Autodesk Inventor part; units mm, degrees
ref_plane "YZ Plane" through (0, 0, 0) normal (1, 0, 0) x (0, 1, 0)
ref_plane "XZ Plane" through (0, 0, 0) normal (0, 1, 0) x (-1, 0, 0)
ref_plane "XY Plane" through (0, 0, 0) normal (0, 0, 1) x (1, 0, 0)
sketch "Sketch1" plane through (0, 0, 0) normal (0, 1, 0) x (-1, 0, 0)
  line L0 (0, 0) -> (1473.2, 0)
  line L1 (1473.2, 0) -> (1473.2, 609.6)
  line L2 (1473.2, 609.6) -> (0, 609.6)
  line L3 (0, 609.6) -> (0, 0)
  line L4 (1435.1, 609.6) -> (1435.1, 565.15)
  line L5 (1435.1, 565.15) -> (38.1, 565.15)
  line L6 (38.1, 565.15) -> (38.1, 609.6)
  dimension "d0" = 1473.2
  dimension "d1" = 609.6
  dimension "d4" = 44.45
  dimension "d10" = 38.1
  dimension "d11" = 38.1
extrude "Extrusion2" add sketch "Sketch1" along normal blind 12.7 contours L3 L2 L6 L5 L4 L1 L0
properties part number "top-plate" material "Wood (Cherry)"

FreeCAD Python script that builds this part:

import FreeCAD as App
import Part
import Sketcher

V = App.Vector
Q = App.Units.Quantity


def add_polygon(sketch, points):
    """Adds a closed chain of lines whose ends are joined by coincident constraints."""
    first, n = sketch.GeometryCount, len(points)
    for a, b in zip(points, points[1:] + points[:1]):
        sketch.addGeometry(Part.LineSegment(App.Vector(*a, 0), App.Vector(*b, 0)), False)
    for i in range(n):
        sketch.addConstraint(Sketcher.Constraint("Coincident", first + i, 2, first + (i + 1) % n, 1))

doc = App.newDocument("Part")
params = doc.addObject("Spreadsheet::Sheet", "Params")
for row, (alias, value) in enumerate([
    ("sketch1_width", "58 in"),
    ("sketch1_height", "24 in"),
    ("sketch1_width2", "1.5 in"),
    ("sketch1_height2", "1.75 in"),
    ("pad1_length", "0.5 in"),
], start=1):
    params.set(f"A{row}", alias)
    params.set(f"B{row}", "=" + value)
    params.setAlias(f"B{row}", alias)

body = doc.addObject("PartDesign::Body", "Body")

sketch1 = body.newObject("Sketcher::SketchObject", "Sketch")
sketch1.AttachmentSupport = (doc.getObject("XZ_Plane"), [""])
sketch1.MapMode = "FlatFace"
add_polygon(sketch1, [(0, 610), (0, 0), (-1473, 0), (-1473, 610), (-1435, 610), (-1435, 565), (-38, 565), (-38, 610)])
sketch1.addConstraint([
    Sketcher.Constraint("Vertical", 0),
    Sketcher.Constraint("Horizontal", 1),
    Sketcher.Constraint("Vertical", 2),
    Sketcher.Constraint("Horizontal", 3),
    Sketcher.Constraint("Vertical", 4),
    Sketcher.Constraint("Horizontal", 5),
    Sketcher.Constraint("Vertical", 6),
    Sketcher.Constraint("Horizontal", 7),
    Sketcher.Constraint("Coincident", 0, 2, -1, 1),
    Sketcher.Constraint("Horizontal", 3, 2, 6, 2),
    Sketcher.Constraint("Equal", 3, 7),
    Sketcher.Constraint("DistanceX", 1, 2, 1, 1, Q("58 in")),
    Sketcher.Constraint("DistanceY", 0, 2, 0, 1, Q("24 in")),
    Sketcher.Constraint("DistanceX", 3, 1, 3, 2, Q("1.5 in")),
    Sketcher.Constraint("DistanceY", 4, 2, 4, 1, Q("1.75 in")),
])
sketch1.setExpression("Constraints[19]", "Params.sketch1_width")
sketch1.setExpression("Constraints[20]", "Params.sketch1_height")
sketch1.setExpression("Constraints[21]", "Params.sketch1_width2")
sketch1.setExpression("Constraints[22]", "Params.sketch1_height2")
pad1 = body.newObject("PartDesign::Pad", "Pad")
pad1.Profile = sketch1
pad1.setExpression("Length", "Params.pad1_length")
pad1.Reversed = True

doc.recompute()
